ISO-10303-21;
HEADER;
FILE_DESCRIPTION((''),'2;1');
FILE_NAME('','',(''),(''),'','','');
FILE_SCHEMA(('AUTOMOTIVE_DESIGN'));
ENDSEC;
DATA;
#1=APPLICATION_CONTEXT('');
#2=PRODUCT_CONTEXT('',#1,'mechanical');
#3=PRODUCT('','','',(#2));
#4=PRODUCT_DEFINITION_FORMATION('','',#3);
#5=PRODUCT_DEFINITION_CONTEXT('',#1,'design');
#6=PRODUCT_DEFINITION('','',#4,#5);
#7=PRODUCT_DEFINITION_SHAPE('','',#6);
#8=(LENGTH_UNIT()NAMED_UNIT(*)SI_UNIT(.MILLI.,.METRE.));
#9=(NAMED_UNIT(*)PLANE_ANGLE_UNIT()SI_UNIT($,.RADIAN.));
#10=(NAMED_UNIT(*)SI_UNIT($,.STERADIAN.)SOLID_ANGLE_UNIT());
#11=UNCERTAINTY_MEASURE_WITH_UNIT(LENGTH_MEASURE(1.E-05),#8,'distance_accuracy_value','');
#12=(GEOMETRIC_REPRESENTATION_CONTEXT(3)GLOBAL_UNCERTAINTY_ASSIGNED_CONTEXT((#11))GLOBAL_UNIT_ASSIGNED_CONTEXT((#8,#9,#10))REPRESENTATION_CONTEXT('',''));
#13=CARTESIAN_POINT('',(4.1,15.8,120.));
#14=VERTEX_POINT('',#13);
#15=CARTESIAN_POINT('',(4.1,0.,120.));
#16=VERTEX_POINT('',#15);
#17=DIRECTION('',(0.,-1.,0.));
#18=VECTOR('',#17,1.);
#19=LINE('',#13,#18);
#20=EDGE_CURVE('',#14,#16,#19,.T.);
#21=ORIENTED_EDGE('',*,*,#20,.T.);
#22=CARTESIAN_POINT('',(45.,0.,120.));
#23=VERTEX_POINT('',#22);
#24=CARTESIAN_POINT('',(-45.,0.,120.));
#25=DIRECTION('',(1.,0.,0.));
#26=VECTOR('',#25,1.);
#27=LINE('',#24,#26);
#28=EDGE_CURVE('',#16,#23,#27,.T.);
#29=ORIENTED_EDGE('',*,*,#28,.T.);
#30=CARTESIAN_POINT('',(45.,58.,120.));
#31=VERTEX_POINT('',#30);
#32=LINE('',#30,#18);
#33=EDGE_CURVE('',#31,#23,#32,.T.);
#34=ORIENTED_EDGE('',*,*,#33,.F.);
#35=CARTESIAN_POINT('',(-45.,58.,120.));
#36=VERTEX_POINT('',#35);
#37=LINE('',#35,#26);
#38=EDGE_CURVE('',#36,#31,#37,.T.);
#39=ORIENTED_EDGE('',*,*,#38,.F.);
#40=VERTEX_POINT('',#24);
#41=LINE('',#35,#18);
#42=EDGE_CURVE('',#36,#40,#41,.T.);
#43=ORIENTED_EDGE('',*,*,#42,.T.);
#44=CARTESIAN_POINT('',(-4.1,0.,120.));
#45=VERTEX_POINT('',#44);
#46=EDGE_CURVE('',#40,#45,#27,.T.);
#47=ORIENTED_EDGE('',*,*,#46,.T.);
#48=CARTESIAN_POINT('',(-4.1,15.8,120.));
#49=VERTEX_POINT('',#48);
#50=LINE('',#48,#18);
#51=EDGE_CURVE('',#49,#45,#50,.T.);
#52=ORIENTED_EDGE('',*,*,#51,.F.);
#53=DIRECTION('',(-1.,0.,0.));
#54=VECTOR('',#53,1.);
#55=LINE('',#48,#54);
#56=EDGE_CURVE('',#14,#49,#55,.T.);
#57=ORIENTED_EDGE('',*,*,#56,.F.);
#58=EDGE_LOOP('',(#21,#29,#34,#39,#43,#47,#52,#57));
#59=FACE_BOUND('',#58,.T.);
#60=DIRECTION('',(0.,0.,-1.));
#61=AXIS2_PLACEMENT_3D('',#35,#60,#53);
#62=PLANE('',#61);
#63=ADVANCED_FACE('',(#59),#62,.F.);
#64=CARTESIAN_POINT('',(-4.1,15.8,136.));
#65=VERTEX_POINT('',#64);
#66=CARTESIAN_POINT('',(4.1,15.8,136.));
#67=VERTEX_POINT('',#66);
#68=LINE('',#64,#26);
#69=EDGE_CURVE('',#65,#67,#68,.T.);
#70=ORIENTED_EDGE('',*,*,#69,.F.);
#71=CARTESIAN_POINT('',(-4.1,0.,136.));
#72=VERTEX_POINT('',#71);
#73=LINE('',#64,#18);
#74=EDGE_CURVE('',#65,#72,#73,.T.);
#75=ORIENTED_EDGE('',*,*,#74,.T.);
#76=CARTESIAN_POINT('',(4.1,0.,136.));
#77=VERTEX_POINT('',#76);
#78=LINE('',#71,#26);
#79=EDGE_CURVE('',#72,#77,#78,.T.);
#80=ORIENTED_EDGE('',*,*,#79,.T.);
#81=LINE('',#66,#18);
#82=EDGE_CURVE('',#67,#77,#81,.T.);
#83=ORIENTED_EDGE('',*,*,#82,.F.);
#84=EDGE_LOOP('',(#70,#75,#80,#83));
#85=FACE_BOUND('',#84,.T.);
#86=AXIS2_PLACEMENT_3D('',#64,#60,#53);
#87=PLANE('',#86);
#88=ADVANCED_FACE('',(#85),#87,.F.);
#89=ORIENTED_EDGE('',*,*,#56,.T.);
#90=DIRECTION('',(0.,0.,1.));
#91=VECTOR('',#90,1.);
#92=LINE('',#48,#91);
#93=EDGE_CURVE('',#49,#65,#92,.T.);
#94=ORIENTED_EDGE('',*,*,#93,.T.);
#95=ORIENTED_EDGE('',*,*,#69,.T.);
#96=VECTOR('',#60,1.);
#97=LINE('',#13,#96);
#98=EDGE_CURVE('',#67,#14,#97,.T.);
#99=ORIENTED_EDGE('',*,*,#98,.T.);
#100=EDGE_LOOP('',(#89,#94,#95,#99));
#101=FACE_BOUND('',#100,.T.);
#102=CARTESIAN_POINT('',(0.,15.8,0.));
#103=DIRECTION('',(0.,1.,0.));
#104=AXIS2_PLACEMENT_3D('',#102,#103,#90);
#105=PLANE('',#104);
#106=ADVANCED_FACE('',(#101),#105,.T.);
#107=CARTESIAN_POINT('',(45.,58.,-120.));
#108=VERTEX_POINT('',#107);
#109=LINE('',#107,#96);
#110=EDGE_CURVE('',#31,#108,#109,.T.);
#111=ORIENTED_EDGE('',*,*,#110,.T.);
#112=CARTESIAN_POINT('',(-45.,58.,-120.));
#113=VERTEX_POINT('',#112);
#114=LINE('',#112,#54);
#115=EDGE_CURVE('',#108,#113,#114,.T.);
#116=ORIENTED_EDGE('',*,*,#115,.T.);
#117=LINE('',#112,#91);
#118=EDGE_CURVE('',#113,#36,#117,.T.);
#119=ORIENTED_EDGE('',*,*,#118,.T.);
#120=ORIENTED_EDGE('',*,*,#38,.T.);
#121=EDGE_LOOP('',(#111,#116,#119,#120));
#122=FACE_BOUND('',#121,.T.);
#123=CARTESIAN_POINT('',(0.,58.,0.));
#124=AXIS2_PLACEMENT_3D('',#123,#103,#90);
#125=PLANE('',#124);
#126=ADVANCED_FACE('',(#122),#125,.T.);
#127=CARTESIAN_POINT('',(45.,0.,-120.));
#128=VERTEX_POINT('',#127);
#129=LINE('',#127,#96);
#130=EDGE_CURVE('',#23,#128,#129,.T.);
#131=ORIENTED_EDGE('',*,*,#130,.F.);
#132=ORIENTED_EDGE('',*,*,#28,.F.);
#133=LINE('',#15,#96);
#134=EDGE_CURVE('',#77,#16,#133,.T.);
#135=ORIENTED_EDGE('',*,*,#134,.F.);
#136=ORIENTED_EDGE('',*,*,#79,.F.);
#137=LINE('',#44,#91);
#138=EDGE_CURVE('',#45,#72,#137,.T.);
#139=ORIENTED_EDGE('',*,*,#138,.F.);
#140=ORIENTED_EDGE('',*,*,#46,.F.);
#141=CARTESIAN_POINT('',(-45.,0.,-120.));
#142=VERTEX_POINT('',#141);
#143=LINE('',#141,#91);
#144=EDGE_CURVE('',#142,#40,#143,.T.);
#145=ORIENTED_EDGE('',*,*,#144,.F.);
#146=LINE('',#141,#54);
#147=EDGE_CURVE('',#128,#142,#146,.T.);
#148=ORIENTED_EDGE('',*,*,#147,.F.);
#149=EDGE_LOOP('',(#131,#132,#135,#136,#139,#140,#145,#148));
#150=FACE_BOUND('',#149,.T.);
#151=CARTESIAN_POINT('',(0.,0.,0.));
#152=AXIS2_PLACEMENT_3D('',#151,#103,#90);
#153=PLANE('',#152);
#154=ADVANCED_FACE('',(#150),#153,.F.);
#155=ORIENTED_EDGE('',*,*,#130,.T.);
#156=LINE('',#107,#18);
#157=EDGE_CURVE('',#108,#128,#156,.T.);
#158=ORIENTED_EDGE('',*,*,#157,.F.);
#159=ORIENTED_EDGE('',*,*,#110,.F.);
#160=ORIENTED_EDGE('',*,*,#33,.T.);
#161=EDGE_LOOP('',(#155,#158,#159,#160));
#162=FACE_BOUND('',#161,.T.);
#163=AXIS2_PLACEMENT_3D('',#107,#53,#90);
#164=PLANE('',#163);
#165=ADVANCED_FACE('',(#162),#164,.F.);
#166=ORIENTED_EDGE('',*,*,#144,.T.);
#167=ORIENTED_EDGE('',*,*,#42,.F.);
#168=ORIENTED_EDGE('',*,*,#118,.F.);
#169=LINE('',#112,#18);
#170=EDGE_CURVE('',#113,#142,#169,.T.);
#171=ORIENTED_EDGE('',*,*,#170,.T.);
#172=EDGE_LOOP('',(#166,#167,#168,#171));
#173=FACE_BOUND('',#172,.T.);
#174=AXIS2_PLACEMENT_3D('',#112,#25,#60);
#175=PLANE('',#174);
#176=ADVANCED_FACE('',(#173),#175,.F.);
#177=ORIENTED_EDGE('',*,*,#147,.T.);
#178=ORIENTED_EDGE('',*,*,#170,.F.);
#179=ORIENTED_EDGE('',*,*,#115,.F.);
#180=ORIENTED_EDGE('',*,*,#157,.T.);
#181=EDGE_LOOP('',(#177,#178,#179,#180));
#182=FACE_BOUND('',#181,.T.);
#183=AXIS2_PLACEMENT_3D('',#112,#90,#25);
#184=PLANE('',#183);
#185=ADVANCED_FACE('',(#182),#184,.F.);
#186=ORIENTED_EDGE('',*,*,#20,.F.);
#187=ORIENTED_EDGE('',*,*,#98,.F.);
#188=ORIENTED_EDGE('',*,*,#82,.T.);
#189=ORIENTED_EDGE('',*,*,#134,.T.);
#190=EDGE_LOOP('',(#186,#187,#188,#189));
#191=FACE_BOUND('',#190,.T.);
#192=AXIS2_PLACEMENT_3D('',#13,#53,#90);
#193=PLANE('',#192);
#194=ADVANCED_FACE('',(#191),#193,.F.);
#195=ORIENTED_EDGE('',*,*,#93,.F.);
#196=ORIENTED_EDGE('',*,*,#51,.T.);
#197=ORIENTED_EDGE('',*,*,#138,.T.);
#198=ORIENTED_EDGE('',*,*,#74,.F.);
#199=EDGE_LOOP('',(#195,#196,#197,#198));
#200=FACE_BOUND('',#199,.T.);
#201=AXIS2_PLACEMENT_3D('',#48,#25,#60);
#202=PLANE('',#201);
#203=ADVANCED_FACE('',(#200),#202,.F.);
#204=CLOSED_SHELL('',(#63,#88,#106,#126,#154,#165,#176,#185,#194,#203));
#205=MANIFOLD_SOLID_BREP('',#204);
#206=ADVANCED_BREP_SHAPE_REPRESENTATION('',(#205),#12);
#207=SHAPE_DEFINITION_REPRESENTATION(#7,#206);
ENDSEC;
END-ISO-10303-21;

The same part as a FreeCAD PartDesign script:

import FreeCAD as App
import Part
import Sketcher

doc = App.newDocument("Part")
params = doc.addObject("Spreadsheet::Sheet", "Params")
for row, (alias, value) in enumerate([
    ("sketch1_width", "90 mm"),
    ("sketch1_height", "240 mm"),
    ("pad1_length", "58 mm"),
    ("sketch2_height", "16 mm"),
    ("sketch2_width", "8.2 mm"),
    ("pad2_length", "15.8 mm"),
], start=1):
    params.set(f"A{row}", alias)
    params.set(f"B{row}", "=" + value)
    params.setAlias(f"B{row}", alias)

body = doc.addObject("PartDesign::Body", "Body")

# Sketch on XZ plane
sketch1 = doc.addObject("Sketcher::SketchObject", "Sketch")
body.addObject(sketch1)
sketch1.AttachmentSupport = (doc.XZ_Plane, [""])
sketch1.MapMode = "FlatFace"
sketch1.addGeometry(Part.LineSegment(App.Vector(-45, -120, 0), App.Vector(-45, 120, 0)), False)
sketch1.addGeometry(Part.LineSegment(App.Vector(-45, 120, 0), App.Vector(45, 120, 0)), False)
sketch1.addGeometry(Part.LineSegment(App.Vector(45, 120, 0), App.Vector(45, -120, 0)), False)
sketch1.addGeometry(Part.LineSegment(App.Vector(45, -120, 0), App.Vector(-45, -120, 0)), False)
sketch1.addConstraint(Sketcher.Constraint("Coincident", 0, 2, 1, 1))
sketch1.addConstraint(Sketcher.Constraint("Coincident", 1, 2, 2, 1))
sketch1.addConstraint(Sketcher.Constraint("Coincident", 2, 2, 3, 1))
sketch1.addConstraint(Sketcher.Constraint("Coincident", 3, 2, 0, 1))
sketch1.addConstraint(Sketcher.Constraint("Vertical", 0))
sketch1.addConstraint(Sketcher.Constraint("Horizontal", 1))
sketch1.addConstraint(Sketcher.Constraint("Vertical", 2))
sketch1.addConstraint(Sketcher.Constraint("Horizontal", 3))
sketch1.addConstraint(Sketcher.Constraint("Symmetric", 0, 2, 2, 2, -1, 1))
sketch1.addConstraint(Sketcher.Constraint("DistanceX", 1, 1, 1, 2, 90.0))
sketch1.addConstraint(Sketcher.Constraint("DistanceY", 0, 1, 0, 2, 240.0))
sketch1.setExpression("Constraints[9]", "Params.sketch1_width")
sketch1.setExpression("Constraints[10]", "Params.sketch1_height")
pad1 = doc.addObject("PartDesign::Pad", "Pad")
body.addObject(pad1)
pad1.Profile = sketch1
pad1.setExpression("Length", "Params.pad1_length")
pad1.Reversed = True

# Sketch on XZ plane
sketch2 = doc.addObject("Sketcher::SketchObject", "Sketch001")
body.addObject(sketch2)
sketch2.AttachmentSupport = (doc.XZ_Plane, [""])
sketch2.MapMode = "FlatFace"
sketch2.addGeometry(Part.LineSegment(App.Vector(-4, 120, 0), App.Vector(-4, 136, 0)), False)
sketch2.addGeometry(Part.LineSegment(App.Vector(-4, 136, 0), App.Vector(4, 136, 0)), False)
sketch2.addGeometry(Part.LineSegment(App.Vector(4, 136, 0), App.Vector(4, 120, 0)), False)
sketch2.addGeometry(Part.LineSegment(App.Vector(4, 120, 0), App.Vector(-4, 120, 0)), False)
sketch2.addConstraint(Sketcher.Constraint("Coincident", 0, 2, 1, 1))
sketch2.addConstraint(Sketcher.Constraint("Coincident", 1, 2, 2, 1))
sketch2.addConstraint(Sketcher.Constraint("Coincident", 2, 2, 3, 1))
sketch2.addConstraint(Sketcher.Constraint("Coincident", 3, 2, 0, 1))
sketch2.addConstraint(Sketcher.Constraint("Vertical", 0))
sketch2.addConstraint(Sketcher.Constraint("Horizontal", 1))
sketch2.addConstraint(Sketcher.Constraint("Vertical", 2))
sketch2.addConstraint(Sketcher.Constraint("Horizontal", 3))
sketch2.addConstraint(Sketcher.Constraint("DistanceY", 0, 1, 0, 2, 16.0))
sketch2.addConstraint(Sketcher.Constraint("DistanceX", 1, 1, 1, 2, 8.2))
sketch2.addConstraint(Sketcher.Constraint("DistanceY", -1, 1, 0, 2, 136.0))
sketch2.addConstraint(Sketcher.Constraint("DistanceX", 0, 2, -1, 1, 4.1))
sketch2.setExpression("Constraints[8]", "Params.sketch2_height")
sketch2.setExpression("Constraints[9]", "Params.sketch2_width")
pad2 = doc.addObject("PartDesign::Pad", "Pad001")
body.addObject(pad2)
pad2.Profile = sketch2
pad2.setExpression("Length", "Params.pad2_length")
pad2.Reversed = True

doc.recompute()
